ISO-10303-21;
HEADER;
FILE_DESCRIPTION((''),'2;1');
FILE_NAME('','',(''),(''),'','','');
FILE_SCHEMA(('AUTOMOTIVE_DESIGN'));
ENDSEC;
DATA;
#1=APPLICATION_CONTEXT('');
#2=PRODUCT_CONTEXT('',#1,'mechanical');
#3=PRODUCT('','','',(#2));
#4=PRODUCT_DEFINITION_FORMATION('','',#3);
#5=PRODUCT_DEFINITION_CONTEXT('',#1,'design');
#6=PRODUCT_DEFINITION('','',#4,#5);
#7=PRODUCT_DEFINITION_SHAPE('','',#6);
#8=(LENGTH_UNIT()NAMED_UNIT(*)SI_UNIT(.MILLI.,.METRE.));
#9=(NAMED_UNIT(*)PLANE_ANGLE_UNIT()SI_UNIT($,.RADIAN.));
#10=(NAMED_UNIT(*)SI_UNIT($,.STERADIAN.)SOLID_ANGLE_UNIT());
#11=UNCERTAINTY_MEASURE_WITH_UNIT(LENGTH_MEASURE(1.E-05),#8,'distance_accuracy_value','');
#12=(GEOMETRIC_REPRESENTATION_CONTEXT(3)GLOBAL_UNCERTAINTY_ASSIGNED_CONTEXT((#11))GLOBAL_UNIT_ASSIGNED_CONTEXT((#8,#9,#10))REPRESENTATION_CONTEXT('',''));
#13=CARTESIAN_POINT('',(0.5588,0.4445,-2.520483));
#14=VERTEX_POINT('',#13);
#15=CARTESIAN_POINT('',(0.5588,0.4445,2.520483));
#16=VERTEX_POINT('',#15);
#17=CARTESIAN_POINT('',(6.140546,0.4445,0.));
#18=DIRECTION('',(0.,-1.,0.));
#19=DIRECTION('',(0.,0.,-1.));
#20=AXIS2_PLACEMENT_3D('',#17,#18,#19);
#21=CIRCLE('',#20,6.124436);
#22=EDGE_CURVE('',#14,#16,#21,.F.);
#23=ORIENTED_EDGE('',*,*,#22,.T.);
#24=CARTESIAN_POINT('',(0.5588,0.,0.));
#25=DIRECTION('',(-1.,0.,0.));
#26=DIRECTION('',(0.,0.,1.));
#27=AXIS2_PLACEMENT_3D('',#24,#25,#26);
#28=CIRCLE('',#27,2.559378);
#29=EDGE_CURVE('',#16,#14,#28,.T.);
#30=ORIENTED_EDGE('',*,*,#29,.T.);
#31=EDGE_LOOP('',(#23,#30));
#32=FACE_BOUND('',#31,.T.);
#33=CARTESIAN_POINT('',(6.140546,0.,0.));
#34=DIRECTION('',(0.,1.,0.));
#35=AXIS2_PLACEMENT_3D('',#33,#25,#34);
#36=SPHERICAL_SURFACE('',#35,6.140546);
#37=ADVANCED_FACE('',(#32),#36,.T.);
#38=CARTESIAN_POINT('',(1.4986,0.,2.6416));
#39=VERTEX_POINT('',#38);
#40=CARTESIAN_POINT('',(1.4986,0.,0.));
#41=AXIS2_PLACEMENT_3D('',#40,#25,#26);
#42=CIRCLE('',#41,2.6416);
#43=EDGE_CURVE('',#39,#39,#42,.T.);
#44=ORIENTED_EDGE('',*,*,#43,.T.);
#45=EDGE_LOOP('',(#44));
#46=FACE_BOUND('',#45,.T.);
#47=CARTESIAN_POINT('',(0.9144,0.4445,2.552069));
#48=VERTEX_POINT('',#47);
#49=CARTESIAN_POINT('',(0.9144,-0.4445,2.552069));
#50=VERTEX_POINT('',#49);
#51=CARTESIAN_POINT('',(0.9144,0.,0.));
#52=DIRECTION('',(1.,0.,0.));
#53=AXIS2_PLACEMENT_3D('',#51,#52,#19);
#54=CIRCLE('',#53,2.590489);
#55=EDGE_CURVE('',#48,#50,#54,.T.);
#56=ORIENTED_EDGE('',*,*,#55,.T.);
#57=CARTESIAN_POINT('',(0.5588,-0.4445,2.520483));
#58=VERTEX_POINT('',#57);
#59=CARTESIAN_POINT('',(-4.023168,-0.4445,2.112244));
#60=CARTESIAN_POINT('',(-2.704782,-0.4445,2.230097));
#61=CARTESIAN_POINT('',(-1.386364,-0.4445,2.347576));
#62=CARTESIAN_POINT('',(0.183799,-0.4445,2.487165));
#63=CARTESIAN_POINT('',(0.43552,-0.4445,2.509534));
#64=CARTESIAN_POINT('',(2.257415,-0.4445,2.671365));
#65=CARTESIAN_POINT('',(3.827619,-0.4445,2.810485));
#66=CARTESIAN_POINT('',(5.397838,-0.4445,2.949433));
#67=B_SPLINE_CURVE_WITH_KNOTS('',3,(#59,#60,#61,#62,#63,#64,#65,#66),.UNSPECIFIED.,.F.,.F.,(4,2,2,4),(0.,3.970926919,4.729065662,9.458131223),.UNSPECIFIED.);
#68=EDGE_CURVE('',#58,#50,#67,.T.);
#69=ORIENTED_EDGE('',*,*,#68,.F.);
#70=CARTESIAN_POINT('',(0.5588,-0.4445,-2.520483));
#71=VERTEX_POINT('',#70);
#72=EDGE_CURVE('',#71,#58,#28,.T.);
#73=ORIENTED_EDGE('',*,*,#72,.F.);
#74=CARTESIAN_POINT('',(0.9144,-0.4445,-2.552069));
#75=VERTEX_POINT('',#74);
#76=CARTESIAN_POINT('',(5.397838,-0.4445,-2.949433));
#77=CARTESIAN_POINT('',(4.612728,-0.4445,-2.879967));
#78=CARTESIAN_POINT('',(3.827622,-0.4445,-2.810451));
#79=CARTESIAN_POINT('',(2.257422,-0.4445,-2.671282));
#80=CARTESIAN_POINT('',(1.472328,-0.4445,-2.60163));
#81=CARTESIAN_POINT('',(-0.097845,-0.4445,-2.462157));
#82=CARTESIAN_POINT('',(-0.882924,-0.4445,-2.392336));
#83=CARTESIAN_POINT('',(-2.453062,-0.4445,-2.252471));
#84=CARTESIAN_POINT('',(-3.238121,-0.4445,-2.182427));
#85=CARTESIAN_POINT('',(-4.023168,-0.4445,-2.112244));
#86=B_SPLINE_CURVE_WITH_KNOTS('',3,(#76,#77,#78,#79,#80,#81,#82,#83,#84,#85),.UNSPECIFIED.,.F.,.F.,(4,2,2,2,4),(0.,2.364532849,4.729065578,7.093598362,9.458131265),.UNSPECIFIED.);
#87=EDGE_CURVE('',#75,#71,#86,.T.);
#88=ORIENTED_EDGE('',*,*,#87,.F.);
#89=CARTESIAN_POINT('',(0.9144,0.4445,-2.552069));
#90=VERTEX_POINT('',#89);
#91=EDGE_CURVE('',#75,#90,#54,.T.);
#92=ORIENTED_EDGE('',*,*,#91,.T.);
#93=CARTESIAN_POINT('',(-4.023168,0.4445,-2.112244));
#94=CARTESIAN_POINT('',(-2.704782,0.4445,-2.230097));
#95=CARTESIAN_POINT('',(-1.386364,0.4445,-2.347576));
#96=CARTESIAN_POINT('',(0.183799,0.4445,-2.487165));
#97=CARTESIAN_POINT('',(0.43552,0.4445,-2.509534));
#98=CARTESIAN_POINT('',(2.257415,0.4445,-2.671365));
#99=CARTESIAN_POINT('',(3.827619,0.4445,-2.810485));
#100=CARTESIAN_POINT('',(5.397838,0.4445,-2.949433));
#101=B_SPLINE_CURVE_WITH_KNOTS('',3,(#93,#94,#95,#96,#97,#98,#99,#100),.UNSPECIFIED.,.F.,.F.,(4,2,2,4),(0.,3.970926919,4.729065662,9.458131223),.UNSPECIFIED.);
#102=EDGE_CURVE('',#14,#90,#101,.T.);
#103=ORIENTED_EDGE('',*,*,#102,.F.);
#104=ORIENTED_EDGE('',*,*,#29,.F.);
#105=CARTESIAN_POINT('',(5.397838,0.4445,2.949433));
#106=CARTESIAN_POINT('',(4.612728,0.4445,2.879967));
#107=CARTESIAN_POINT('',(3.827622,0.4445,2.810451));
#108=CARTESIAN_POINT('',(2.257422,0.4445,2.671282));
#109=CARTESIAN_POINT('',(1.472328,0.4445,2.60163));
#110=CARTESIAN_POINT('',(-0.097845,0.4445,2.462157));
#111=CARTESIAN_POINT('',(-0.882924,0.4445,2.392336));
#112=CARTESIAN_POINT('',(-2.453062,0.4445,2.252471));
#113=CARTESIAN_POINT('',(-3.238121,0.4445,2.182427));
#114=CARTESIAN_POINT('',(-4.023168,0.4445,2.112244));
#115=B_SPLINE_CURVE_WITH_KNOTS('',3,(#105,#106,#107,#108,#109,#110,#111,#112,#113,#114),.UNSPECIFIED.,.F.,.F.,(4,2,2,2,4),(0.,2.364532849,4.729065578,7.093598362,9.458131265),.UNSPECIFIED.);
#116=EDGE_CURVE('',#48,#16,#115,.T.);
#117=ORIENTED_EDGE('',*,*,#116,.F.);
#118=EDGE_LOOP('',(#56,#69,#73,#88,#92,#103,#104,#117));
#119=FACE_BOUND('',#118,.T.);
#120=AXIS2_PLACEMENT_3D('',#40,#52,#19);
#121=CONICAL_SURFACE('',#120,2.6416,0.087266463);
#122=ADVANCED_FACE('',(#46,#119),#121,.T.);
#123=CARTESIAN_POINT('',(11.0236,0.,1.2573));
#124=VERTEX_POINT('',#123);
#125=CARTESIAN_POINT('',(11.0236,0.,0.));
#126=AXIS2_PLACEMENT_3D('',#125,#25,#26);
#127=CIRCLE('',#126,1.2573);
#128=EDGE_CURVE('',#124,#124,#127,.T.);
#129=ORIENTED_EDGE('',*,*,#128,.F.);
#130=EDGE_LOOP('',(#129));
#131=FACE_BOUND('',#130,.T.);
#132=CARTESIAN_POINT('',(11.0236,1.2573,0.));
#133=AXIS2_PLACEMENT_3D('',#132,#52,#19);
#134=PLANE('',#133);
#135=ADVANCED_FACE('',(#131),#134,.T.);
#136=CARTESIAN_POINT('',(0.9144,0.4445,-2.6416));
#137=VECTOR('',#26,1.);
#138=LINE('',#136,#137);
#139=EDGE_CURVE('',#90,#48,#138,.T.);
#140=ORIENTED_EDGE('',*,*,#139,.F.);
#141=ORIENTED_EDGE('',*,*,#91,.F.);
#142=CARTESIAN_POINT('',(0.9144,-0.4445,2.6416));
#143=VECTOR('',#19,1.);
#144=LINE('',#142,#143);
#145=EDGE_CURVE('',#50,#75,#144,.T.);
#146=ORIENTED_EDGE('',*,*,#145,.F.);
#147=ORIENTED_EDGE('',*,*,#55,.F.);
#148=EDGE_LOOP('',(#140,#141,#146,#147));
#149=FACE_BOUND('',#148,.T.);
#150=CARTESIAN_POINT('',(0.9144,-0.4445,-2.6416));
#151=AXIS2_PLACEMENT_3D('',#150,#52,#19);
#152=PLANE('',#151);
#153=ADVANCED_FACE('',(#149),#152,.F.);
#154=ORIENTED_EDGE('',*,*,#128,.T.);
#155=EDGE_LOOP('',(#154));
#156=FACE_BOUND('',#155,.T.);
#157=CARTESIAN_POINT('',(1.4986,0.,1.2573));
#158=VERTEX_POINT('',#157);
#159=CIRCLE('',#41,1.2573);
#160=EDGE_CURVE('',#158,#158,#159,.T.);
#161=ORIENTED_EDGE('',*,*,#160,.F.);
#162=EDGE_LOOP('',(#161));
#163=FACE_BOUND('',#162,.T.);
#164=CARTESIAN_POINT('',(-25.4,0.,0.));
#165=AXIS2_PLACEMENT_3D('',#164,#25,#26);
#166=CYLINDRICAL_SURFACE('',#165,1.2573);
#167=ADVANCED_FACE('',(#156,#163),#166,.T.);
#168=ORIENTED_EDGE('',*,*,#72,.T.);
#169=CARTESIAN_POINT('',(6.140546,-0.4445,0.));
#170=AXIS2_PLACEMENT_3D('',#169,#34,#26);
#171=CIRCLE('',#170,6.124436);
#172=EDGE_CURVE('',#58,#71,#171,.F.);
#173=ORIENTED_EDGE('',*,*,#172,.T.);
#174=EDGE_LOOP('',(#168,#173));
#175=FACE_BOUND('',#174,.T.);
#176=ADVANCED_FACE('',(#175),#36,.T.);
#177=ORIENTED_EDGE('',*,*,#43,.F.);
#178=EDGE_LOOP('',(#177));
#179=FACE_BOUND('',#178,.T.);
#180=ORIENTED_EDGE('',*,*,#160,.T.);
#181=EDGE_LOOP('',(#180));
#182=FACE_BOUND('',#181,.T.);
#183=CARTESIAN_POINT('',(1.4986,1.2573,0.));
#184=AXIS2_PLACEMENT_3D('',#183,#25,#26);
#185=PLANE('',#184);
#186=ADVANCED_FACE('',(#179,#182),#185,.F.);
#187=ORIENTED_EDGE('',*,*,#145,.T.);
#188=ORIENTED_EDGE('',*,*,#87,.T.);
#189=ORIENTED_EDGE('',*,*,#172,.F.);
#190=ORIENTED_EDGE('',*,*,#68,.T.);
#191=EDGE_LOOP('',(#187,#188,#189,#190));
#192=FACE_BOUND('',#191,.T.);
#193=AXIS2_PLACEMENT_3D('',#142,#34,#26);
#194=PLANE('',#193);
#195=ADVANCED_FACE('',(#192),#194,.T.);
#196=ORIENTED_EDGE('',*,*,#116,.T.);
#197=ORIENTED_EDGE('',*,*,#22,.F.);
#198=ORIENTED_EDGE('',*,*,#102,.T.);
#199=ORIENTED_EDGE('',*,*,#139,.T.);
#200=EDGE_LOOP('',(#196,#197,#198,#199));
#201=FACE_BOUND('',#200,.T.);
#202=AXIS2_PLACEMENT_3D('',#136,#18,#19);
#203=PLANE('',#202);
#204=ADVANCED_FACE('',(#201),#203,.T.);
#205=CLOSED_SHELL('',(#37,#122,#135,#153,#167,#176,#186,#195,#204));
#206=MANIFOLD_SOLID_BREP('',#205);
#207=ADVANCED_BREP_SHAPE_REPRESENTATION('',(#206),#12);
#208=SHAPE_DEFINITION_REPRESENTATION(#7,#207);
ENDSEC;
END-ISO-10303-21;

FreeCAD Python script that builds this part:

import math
import FreeCAD as App
import Part
import Sketcher

V = App.Vector
Q = App.Units.Quantity

doc = App.newDocument("Part")
body = doc.addObject("PartDesign::Body", "Body")

# Sketch on XY plane
sketch1 = doc.addObject("Sketcher::SketchObject", "Sketch")
body.addObject(sketch1)
sketch1.AttachmentSupport = (doc.XY_Plane, [""])
sketch1.MapMode = "FlatFace"
sketch1.addGeometry(Part.LineSegment(V(1.4986, 1.2573, 0), V(1.4986, 2.6416, 0)), False)
sketch1.addGeometry(Part.LineSegment(V(1.4986, 2.6416, 0), V(0.5588, 2.559378, 0)), False)
sketch1.addGeometry(Part.ArcOfCircle(Part.Circle(V(6.140546, 0, 0), V(0, 0, 1), 6.140546), math.radians(155.367291), math.radians(180)), False)
sketch1.addGeometry(Part.LineSegment(V(0, 0, 0), V(11.0236, 0, 0)), False)
sketch1.addGeometry(Part.LineSegment(V(11.0236, 0, 0), V(11.0236, 1.2573, 0)), False)
sketch1.addGeometry(Part.LineSegment(V(11.0236, 1.2573, 0), V(1.4986, 1.2573, 0)), False)
sketch1.addConstraint(Sketcher.Constraint("Coincident", 0, 2, 1, 1))
sketch1.addConstraint(Sketcher.Constraint("Coincident", 1, 2, 2, 1))
sketch1.addConstraint(Sketcher.Constraint("Coincident", 2, 2, 3, 1))
sketch1.addConstraint(Sketcher.Constraint("Coincident", 3, 2, 4, 1))
sketch1.addConstraint(Sketcher.Constraint("Coincident", 4, 2, 5, 1))
sketch1.addConstraint(Sketcher.Constraint("Coincident", 5, 2, 0, 1))
sketch1.addConstraint(Sketcher.Constraint("Vertical", 0))
sketch1.addConstraint(Sketcher.Constraint("Horizontal", 3))
sketch1.addConstraint(Sketcher.Constraint("Vertical", 4))
sketch1.addConstraint(Sketcher.Constraint("Horizontal", 5))
sketch1.addConstraint(Sketcher.Constraint("Coincident", 2, 2, -1, 1))
sketch1.addConstraint(Sketcher.Constraint("PointOnObject", 2, 3, -1))
sketch1.addConstraint(Sketcher.Constraint("Angle", 1, Q("-175 deg")))
sketch1.addConstraint(Sketcher.Constraint("DistanceX", 3, 1, 3, 2, Q("0.434 in")))
sketch1.addConstraint(Sketcher.Constraint("DistanceX", 5, 2, 5, 1, Q("0.375 in")))
sketch1.addConstraint(Sketcher.Constraint("DistanceY", 0, 1, 0, 2, Q("0.0545 in")))
sketch1.addConstraint(Sketcher.Constraint("DistanceY", 4, 1, 4, 2, Q("0.0495 in")))
sketch1.addConstraint(Sketcher.Constraint("DistanceX", -1, 1, 1, 2, Q("0.022 in")))
revolution = doc.addObject("PartDesign::Revolution", "Revolution")
body.addObject(revolution)
revolution.Profile = sketch1
revolution.ReferenceAxis = (sketch1, ["H_Axis"])
revolution.Angle = 360

# Sketch on YZ plane
sketch2 = doc.addObject("Sketcher::SketchObject", "Sketch001")
body.addObject(sketch2)
sketch2.AttachmentSupport = (doc.YZ_Plane, [""])
sketch2.MapMode = "FlatFace"
sketch2.addGeometry(Part.LineSegment(V(0.4445, 2.6416, 0), V(-0.4445, 2.6416, 0)), False)
sketch2.addGeometry(Part.LineSegment(V(-0.4445, 2.6416, 0), V(-0.4445, -2.6416, 0)), False)
sketch2.addGeometry(Part.LineSegment(V(-0.4445, -2.6416, 0), V(0.4445, -2.6416, 0)), False)
sketch2.addGeometry(Part.LineSegment(V(0.4445, -2.6416, 0), V(0.4445, 2.6416, 0)), False)
sketch2.addConstraint(Sketcher.Constraint("Coincident", 0, 2, 1, 1))
sketch2.addConstraint(Sketcher.Constraint("Coincident", 1, 2, 2, 1))
sketch2.addConstraint(Sketcher.Constraint("Coincident", 2, 2, 3, 1))
sketch2.addConstraint(Sketcher.Constraint("Coincident", 3, 2, 0, 1))
sketch2.addConstraint(Sketcher.Constraint("Horizontal", 0))
sketch2.addConstraint(Sketcher.Constraint("Vertical", 1))
sketch2.addConstraint(Sketcher.Constraint("Horizontal", 2))
sketch2.addConstraint(Sketcher.Constraint("Vertical", 3))
sketch2.addConstraint(Sketcher.Constraint("Symmetric", 0, 2, 2, 2, -1, 1))
sketch2.addConstraint(Sketcher.Constraint("DistanceX", 0, 2, 0, 1, Q("0.035 in")))
sketch2.addConstraint(Sketcher.Constraint("DistanceY", 1, 2, 1, 1, Q("0.208 in")))
pocket1 = doc.addObject("PartDesign::Pocket", "Pocket")
body.addObject(pocket1)
pocket1.Profile = sketch2
pocket1.Length = Q("0.036 in")
pocket1.Reversed = True

doc.recompute()
